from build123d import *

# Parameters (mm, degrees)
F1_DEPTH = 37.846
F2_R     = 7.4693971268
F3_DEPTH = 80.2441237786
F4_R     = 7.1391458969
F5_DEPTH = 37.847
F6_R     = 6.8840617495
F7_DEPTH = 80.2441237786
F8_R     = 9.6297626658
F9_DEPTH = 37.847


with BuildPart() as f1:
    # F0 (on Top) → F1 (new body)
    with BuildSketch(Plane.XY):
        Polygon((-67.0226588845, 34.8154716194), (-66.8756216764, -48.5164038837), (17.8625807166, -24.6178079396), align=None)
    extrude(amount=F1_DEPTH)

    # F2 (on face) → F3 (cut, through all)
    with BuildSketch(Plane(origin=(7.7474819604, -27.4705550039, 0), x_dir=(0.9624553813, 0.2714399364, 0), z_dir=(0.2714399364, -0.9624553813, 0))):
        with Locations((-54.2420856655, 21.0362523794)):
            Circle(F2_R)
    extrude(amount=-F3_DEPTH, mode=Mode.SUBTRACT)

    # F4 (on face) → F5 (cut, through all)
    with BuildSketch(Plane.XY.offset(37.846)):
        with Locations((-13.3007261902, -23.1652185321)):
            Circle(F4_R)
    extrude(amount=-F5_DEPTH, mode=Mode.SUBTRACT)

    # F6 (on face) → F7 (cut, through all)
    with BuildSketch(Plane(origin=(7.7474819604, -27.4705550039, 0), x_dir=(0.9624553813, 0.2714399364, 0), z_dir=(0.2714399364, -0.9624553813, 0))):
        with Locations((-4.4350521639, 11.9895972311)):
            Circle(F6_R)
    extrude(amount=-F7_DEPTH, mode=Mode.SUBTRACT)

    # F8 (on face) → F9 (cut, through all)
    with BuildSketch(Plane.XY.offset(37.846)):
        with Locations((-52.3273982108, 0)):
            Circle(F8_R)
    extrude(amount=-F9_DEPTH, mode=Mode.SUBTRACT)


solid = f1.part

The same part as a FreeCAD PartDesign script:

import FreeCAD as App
import Part
import Sketcher
Q = App.Units.Quantity


def add_polygon(sketch, points):
    """Adds a closed chain of lines whose ends are joined by coincident constraints."""
    first, n = sketch.GeometryCount, len(points)
    for a, b in zip(points, points[1:] + points[:1]):
        sketch.addGeometry(Part.LineSegment(App.Vector(*a, 0), App.Vector(*b, 0)), False)
    for i in range(n):
        sketch.addConstraint(Sketcher.Constraint("Coincident", first + i, 2, first + (i + 1) % n, 1))

doc = App.newDocument("Part")
body = doc.addObject("PartDesign::Body", "Body")

sketch1 = body.newObject("Sketcher::SketchObject", "Sketch")
sketch1.AttachmentSupport = (doc.getObject("XY_Plane"), [""])
sketch1.MapMode = "FlatFace"
add_polygon(sketch1, [(-67, 35), (-67, -49), (18, -25)])
sketch1.addConstraint([
    Sketcher.Constraint("DistanceX", 0, 2, -1, 1, Q("66.875622 mm")),
    Sketcher.Constraint("DistanceX", -1, 1, 1, 2, Q("17.862581 mm")),
    Sketcher.Constraint("DistanceX", 2, 2, -1, 1, Q("67.022659 mm")),
    Sketcher.Constraint("DistanceY", -1, 1, 2, 2, Q("34.815472 mm")),
    Sketcher.Constraint("DistanceY", 1, 2, 2, 2, Q("59.43328 mm")),
    Sketcher.Constraint("Distance", 0, Q("83.332005 mm")),
])
pad1 = body.newObject("PartDesign::Pad", "Pad")
pad1.Profile = sketch1
pad1.Length = Q("1.49 in")

sketch2 = body.newObject("Sketcher::SketchObject", "Sketch001")
sketch2.Placement = App.Placement(App.Vector(7.747482, -27.470555, 0), App.Rotation(App.Vector(0.962455381, 0.271439936, 0), App.Vector(0, 0, 0.999999999), App.Vector(0.271439936, -0.962455381, 0), "ZXY"))
sketch2.addGeometry(Part.Circle(App.Vector(-54, 21, 0), App.Vector(0, 0, 1), 7), False)
sketch2.addConstraint([
    Sketcher.Constraint("Diameter", 0, Q("14.938794 mm")),
    Sketcher.Constraint("DistanceX", 0, 3, -1, 1, Q("54.242086 mm")),
    Sketcher.Constraint("DistanceY", -1, 1, 0, 3, Q("21.036252 mm")),
])
pocket1 = body.newObject("PartDesign::Pocket", "Pocket")
pocket1.Profile = sketch2
pocket1.Type = "ThroughAll"

sketch3 = body.newObject("Sketcher::SketchObject", "Sketch002")
sketch3.AttachmentSupport = (doc.getObject("XY_Plane"), [""])
sketch3.MapMode = "FlatFace"
sketch3.AttachmentOffset = App.Placement(App.Vector(0, 0, 1.49 * 25.4), App.Rotation())
sketch3.addGeometry(Part.Circle(App.Vector(-13, -23, 0), App.Vector(0, 0, 1), 7), False)
sketch3.addConstraint([
    Sketcher.Constraint("Diameter", 0, Q("14.278292 mm")),
    Sketcher.Constraint("DistanceY", 0, 3, -1, 1, Q("23.165219 mm")),
    Sketcher.Constraint("DistanceX", 0, 3, -1, 1, Q("13.300726 mm")),
])
pocket2 = body.newObject("PartDesign::Pocket", "Pocket001")
pocket2.Profile = sketch3
pocket2.Type = "ThroughAll"

sketch4 = body.newObject("Sketcher::SketchObject", "Sketch003")
sketch4.Placement = App.Placement(App.Vector(7.747482, -27.470555, 0), App.Rotation(App.Vector(0.962455381, 0.271439936, 0), App.Vector(0, 0, 0.999999999), App.Vector(0.271439936, -0.962455381, 0), "ZXY"))
sketch4.addGeometry(Part.Circle(App.Vector(-4, 12, 0), App.Vector(0, 0, 1), 7), False)
sketch4.addConstraint([
    Sketcher.Constraint("Diameter", 0, Q("13.768123 mm")),
    Sketcher.Constraint("DistanceX", 0, 3, -1, 1, Q("4.435052 mm")),
    Sketcher.Constraint("DistanceY", -1, 1, 0, 3, Q("11.989597 mm")),
])
pocket3 = body.newObject("PartDesign::Pocket", "Pocket002")
pocket3.Profile = sketch4
pocket3.Type = "ThroughAll"

sketch5 = body.newObject("Sketcher::SketchObject", "Sketch004")
sketch5.AttachmentSupport = (doc.getObject("XY_Plane"), [""])
sketch5.MapMode = "FlatFace"
sketch5.AttachmentOffset = App.Placement(App.Vector(0, 0, 1.49 * 25.4), App.Rotation())
sketch5.addGeometry(Part.Circle(App.Vector(-52, 0, 0), App.Vector(0, 0, 1), 10), False)
sketch5.addConstraint([
    Sketcher.Constraint("PointOnObject", 0, 3, -1),
    Sketcher.Constraint("Diameter", 0, Q("19.259525 mm")),
    Sketcher.Constraint("DistanceX", 0, 3, -1, 1, Q("52.327398 mm")),
])
pocket4 = body.newObject("PartDesign::Pocket", "Pocket003")
pocket4.Profile = sketch5
pocket4.Type = "ThroughAll"

doc.recompute()
